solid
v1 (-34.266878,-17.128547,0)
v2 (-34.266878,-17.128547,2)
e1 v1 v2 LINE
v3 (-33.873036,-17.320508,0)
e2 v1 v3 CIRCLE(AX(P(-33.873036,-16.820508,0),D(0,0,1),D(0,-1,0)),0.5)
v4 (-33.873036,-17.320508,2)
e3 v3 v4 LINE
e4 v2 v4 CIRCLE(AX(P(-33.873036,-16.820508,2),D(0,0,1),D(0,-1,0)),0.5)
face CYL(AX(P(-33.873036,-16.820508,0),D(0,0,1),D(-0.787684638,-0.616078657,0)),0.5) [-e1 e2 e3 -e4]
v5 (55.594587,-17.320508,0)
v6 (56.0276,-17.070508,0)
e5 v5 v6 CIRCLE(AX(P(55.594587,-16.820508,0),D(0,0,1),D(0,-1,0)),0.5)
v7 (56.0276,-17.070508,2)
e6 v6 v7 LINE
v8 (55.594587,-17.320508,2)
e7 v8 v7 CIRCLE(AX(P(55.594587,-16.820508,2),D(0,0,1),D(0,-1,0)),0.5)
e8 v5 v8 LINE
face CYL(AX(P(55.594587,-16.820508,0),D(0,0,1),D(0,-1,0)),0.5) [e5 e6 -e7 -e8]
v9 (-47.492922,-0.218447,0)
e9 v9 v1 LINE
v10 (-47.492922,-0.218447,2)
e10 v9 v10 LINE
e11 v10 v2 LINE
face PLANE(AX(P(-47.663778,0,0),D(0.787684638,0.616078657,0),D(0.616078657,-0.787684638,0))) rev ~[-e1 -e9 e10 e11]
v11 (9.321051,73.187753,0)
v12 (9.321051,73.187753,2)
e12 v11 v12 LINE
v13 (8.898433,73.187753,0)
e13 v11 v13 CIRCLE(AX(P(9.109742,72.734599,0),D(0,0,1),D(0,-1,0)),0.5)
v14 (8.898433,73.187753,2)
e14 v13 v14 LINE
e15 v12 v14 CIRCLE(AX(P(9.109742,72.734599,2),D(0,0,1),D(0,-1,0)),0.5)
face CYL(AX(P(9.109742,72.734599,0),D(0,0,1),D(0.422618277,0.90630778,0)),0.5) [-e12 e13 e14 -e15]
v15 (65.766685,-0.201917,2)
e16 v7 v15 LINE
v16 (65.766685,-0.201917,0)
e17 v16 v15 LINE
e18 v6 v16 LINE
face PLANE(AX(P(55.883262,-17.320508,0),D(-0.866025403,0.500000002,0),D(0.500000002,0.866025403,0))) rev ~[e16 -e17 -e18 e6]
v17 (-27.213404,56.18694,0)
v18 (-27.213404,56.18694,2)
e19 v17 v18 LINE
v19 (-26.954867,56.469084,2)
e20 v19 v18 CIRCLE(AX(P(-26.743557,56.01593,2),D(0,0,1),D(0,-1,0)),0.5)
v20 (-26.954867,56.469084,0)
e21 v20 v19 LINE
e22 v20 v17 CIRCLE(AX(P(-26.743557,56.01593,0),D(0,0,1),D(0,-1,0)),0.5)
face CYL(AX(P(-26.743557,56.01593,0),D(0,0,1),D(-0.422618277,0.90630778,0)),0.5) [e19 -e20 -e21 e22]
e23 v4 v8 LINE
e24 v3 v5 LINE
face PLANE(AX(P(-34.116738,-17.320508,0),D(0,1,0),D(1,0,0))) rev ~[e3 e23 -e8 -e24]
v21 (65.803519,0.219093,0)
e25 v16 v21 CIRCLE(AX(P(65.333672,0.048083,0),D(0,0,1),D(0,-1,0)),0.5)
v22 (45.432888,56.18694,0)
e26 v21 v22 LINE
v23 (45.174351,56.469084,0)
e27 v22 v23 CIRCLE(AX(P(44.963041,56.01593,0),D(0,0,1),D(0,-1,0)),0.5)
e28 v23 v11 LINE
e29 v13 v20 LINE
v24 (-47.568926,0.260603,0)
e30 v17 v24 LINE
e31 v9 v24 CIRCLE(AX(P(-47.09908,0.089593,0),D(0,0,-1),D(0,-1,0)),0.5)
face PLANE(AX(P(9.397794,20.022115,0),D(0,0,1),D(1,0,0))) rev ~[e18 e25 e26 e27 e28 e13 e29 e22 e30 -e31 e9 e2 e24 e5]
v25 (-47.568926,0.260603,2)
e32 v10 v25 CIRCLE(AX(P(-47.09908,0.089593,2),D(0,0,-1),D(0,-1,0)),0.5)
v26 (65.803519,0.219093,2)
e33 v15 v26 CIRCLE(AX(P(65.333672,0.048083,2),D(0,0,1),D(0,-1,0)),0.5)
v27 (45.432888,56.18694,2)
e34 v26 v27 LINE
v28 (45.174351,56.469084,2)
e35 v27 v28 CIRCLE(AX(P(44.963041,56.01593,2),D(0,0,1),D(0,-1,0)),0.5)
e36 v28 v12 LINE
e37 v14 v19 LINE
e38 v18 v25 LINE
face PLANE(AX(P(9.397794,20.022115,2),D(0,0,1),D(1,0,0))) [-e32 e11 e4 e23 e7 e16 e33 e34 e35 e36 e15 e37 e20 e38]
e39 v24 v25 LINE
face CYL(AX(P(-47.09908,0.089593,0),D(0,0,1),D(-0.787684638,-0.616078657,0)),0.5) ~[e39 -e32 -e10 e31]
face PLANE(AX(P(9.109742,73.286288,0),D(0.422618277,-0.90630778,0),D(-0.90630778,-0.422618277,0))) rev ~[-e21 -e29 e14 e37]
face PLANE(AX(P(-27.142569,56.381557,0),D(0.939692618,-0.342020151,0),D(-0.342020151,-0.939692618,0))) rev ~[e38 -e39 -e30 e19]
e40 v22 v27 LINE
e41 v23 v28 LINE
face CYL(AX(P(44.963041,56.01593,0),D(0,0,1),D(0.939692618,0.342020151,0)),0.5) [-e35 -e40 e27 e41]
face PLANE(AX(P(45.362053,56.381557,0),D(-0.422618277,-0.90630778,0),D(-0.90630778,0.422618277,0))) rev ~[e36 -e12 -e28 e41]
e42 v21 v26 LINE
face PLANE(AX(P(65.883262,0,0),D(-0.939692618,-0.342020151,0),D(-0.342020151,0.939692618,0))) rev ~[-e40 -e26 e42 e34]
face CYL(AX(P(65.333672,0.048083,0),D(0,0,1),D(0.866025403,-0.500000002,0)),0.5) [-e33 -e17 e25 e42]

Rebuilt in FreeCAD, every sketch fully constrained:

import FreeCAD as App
import Part
import Sketcher

V = App.Vector
Q = App.Units.Quantity


def edges_at(feature, points):
    """Names of the edges that pass closest to the given points."""
    edges = feature.Shape.Edges
    near = lambda p: min(range(len(edges)), key=lambda i: edges[i].distToShape(Part.Vertex(*p))[0])
    return sorted({f"Edge{near(p) + 1}" for p in points})

doc = App.newDocument("Part")
params = doc.addObject("Spreadsheet::Sheet", "Params")
for row, (alias, value) in enumerate([
    ("sketch1_width", "90 mm"),
    ("sketch1_length", "20 mm"),
    ("sketch1_length2", "60 mm"),
    ("sketch1_length3", "40 mm"),
    ("pad1_length", "2 mm"),
    ("fillet_radius", "0.5 mm"),
], start=1):
    params.set(f"A{row}", alias)
    params.set(f"B{row}", "=" + value)
    params.setAlias(f"B{row}", alias)

body = doc.addObject("PartDesign::Body", "Body")

sketch1 = doc.addObject("Sketcher::SketchObject", "Sketch")
body.addObject(sketch1)
sketch1.AttachmentSupport = (doc.XY_Plane, [""])
sketch1.MapMode = "FlatFace"
sketch1.addGeometry([
    Part.LineSegment(V(-48, 0, 0), V(-34, -17, 0)),
    Part.LineSegment(V(-34, -17, 0), V(56, -17, 0)),
    Part.LineSegment(V(56, -17, 0), V(66, 0, 0)),
    Part.LineSegment(V(66, 0, 0), V(45, 56, 0)),
    Part.LineSegment(V(45, 56, 0), V(9, 73, 0)),
    Part.LineSegment(V(9, 73, 0), V(-27, 56, 0)),
    Part.LineSegment(V(-27, 56, 0), V(-48, 0, 0)),
], False)
sketch1.addConstraint([
    Sketcher.Constraint("Coincident", 0, 2, 1, 1),
    Sketcher.Constraint("Coincident", 1, 2, 2, 1),
    Sketcher.Constraint("Coincident", 2, 2, 3, 1),
    Sketcher.Constraint("Coincident", 3, 2, 4, 1),
    Sketcher.Constraint("Coincident", 4, 2, 5, 1),
    Sketcher.Constraint("Coincident", 5, 2, 6, 1),
    Sketcher.Constraint("Coincident", 6, 2, 0, 1),
    Sketcher.Constraint("Horizontal", 1),
    Sketcher.Constraint("PointOnObject", 2, 2, -1),
    Sketcher.Constraint("PointOnObject", 6, 2, -1),
    Sketcher.Constraint("Horizontal", 3, 2, 5, 2),
    Sketcher.Constraint("Equal", 4, 5),
    Sketcher.Constraint("Equal", 3, 6),
    Sketcher.Constraint("DistanceX", 1, 1, 1, 2, Q("90 mm")),
    Sketcher.Constraint("Angle", 2, Q("60 deg")),
    Sketcher.Constraint("Angle", 3, Q("110 deg")),
    Sketcher.Constraint("Angle", 4, Q("154.999999 deg")),
    Sketcher.Constraint("Distance", 2, Q("20 mm")),
    Sketcher.Constraint("Distance", 3, Q("60 mm")),
    Sketcher.Constraint("Distance", 4, Q("40 mm")),
    Sketcher.Constraint("DistanceX", -1, 1, 2, 2, Q("65.883262 mm")),
])
sketch1.setExpression("Constraints[13]", "Params.sketch1_width")
sketch1.setExpression("Constraints[17]", "Params.sketch1_length")
sketch1.setExpression("Constraints[18]", "Params.sketch1_length2")
sketch1.setExpression("Constraints[19]", "Params.sketch1_length3")
pad1 = doc.addObject("PartDesign::Pad", "Pad")
body.addObject(pad1)
pad1.Profile = sketch1
pad1.setExpression("Length", "Params.pad1_length")
doc.recompute()

fillet = doc.addObject("PartDesign::Fillet", "Fillet")
body.addObject(fillet)
fillet.Base = (pad1, edges_at(pad1, [
    (9.11, 73.286, 1),
    (-27.143, 56.382, 1),
    (-47.664, 0, 1),
    (-34.117, -17.321, 1),
    (55.883, -17.321, 1),
    (65.883, 0, 1),
    (45.362, 56.382, 1),
]))
fillet.setExpression("Radius", "Params.fillet_radius")

doc.recompute()
